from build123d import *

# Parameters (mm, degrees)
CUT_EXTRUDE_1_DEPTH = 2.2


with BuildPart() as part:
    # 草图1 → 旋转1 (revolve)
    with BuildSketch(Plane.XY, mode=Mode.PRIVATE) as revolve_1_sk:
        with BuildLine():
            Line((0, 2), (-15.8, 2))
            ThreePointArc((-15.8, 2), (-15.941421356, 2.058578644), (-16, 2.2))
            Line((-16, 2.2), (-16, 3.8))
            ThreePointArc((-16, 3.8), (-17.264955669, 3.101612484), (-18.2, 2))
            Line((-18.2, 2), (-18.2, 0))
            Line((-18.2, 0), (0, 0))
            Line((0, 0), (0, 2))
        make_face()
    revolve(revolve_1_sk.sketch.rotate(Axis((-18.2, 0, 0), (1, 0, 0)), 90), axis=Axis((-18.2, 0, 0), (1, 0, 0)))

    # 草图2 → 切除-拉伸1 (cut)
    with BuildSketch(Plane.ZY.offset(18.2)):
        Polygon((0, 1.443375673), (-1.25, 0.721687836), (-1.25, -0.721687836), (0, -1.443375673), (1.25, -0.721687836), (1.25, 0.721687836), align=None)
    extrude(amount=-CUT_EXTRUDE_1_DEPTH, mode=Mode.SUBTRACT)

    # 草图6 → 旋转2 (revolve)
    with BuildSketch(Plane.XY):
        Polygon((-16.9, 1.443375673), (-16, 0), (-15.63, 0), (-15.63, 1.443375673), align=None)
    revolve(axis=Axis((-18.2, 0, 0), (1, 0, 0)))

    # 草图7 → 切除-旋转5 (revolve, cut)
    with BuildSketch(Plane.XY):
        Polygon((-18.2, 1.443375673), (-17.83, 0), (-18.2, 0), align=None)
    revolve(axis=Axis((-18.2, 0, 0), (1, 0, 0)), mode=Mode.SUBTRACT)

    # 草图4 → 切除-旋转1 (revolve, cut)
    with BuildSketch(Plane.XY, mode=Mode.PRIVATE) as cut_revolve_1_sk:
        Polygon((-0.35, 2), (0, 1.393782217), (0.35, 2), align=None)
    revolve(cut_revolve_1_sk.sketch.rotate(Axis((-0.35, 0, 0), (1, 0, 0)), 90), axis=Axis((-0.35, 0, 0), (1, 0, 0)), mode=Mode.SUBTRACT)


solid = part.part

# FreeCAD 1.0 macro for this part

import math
import FreeCAD as App
import Part
import Sketcher
from FreeCAD import Vector
Q = App.Units.Quantity

doc = App.newDocument("Part")
params = doc.addObject("Spreadsheet::Sheet", "Params")
for row, (alias, value) in enumerate([
    ("sketch1_radius", "0.2 mm"),
    ("sketch1_height", "2 mm"),
    ("sketch1_width", "15.8 mm"),
    ("sketch1_width2", "18.2 mm"),
    ("sketch1_height2", "1.6 mm"),
    ("revolution_angle", "360 deg"),
    ("pocket1_length", "2.2 mm"),
    ("sketch3_width", "0.37 mm"),
    ("sketch3_width2", "1.27 mm"),
    ("revolution2_angle", "360 deg"),
    ("sketch4_width", "0.37 mm"),
    ("groove_angle", "360 deg"),
    ("sketch5_width", "0.7 mm"),
    ("groove2_angle", "360 deg"),
], start=1):
    params.set(f"A{row}", alias)
    params.set(f"B{row}", "=" + value)
    params.setAlias(f"B{row}", alias)

body = doc.addObject("PartDesign::Body", "Body")

sketch1 = body.newObject("Sketcher::SketchObject", "Sketch")
sketch1.AttachmentSupport = (doc.getObject("XY_Plane"), [""])
sketch1.MapMode = "FlatFace"
sketch1.addGeometry([
    Part.LineSegment(Vector(0, 2, 0), Vector(-15.8, 2, 0)),
    Part.ArcOfCircle(Part.Circle(Vector(-15.8, 2.2, 0), Vector(0, 0, 1), 0.2), math.radians(-180), math.radians(-90)),
    Part.LineSegment(Vector(-16, 2.2, 0), Vector(-16, 3.8, 0)),
    Part.ArcOfCircle(Part.Circle(Vector(-14.727273, 0, 0), Vector(0, 0, 1), 4.007472), math.radians(108.517152), math.radians(150.061662)),
    Part.LineSegment(Vector(-18.2, 2, 0), Vector(-18.2, 0, 0)),
    Part.LineSegment(Vector(-18.2, 0, 0), Vector(0, 0, 0)),
    Part.LineSegment(Vector(0, 0, 0), Vector(0, 2, 0)),
], False)
sketch1.addConstraint([
    Sketcher.Constraint("Tangent", 0, 2, 1, 2),
    Sketcher.Constraint("Tangent", 1, 1, 2, 1),
    Sketcher.Constraint("Coincident", 2, 2, 3, 1),
    Sketcher.Constraint("Coincident", 3, 2, 4, 1),
    Sketcher.Constraint("Coincident", 4, 2, 5, 1),
    Sketcher.Constraint("Coincident", 5, 2, 6, 1),
    Sketcher.Constraint("Coincident", 6, 2, 0, 1),
    Sketcher.Constraint("Horizontal", 0),
    Sketcher.Constraint("Vertical", 2),
    Sketcher.Constraint("Vertical", 4),
    Sketcher.Constraint("Horizontal", 5),
    Sketcher.Constraint("Vertical", 6),
    Sketcher.Constraint("Coincident", 5, 2, -1, 1),
    Sketcher.Constraint("PointOnObject", 3, 3, -1),
    Sketcher.Constraint("Horizontal", 0, 2, 3, 2),
    Sketcher.Constraint("Radius", 1, Q("0.2 mm")),
    Sketcher.Constraint("DistanceY", 4, 2, 4, 1, Q("2 mm")),
    Sketcher.Constraint("DistanceX", 0, 2, 0, 1, Q("15.8 mm")),
    Sketcher.Constraint("DistanceX", 5, 1, 5, 2, Q("18.2 mm")),
    Sketcher.Constraint("DistanceY", 2, 1, 2, 2, Q("1.6 mm")),
])
sketch1.setExpression("Constraints[15]", "Params.sketch1_radius")
sketch1.setExpression("Constraints[16]", "Params.sketch1_height")
sketch1.setExpression("Constraints[17]", "Params.sketch1_width")
sketch1.setExpression("Constraints[18]", "Params.sketch1_width2")
sketch1.setExpression("Constraints[19]", "Params.sketch1_height2")
revolution = body.newObject("PartDesign::Revolution", "Revolution")
revolution.Profile = sketch1
revolution.ReferenceAxis = (sketch1, ["H_Axis"])
revolution.setExpression("Angle", "Params.revolution_angle")

sketch2 = body.newObject("Sketcher::SketchObject", "Sketch001")
sketch2.AttachmentSupport = (doc.getObject("YZ_Plane"), [""])
sketch2.MapMode = "FlatFace"
sketch2.AttachmentOffset = App.Placement(Vector(0, 0, -18.2), App.Rotation())
sketch2.addGeometry([
    Part.LineSegment(Vector(1.443376, 0, 0), Vector(0.721688, -1.25, 0)),
    Part.LineSegment(Vector(0.721688, -1.25, 0), Vector(-0.721688, -1.25, 0)),
    Part.LineSegment(Vector(-0.721688, -1.25, 0), Vector(-1.443376, 0, 0)),
    Part.LineSegment(Vector(-1.443376, 0, 0), Vector(-0.721688, 1.25, 0)),
    Part.LineSegment(Vector(-0.721688, 1.25, 0), Vector(0.721688, 1.25, 0)),
    Part.LineSegment(Vector(0.721688, 1.25, 0), Vector(1.443376, 0, 0)),
], False)
sketch2.addConstraint([
    Sketcher.Constraint("Coincident", 0, 2, 1, 1),
    Sketcher.Constraint("Coincident", 1, 2, 2, 1),
    Sketcher.Constraint("Coincident", 2, 2, 3, 1),
    Sketcher.Constraint("Coincident", 3, 2, 4, 1),
    Sketcher.Constraint("Coincident", 4, 2, 5, 1),
    Sketcher.Constraint("Coincident", 5, 2, 0, 1),
    Sketcher.Constraint("Horizontal", 1),
    Sketcher.Constraint("Horizontal", 4),
    Sketcher.Constraint("Symmetric", 0, 2, 3, 2, -1, 1),
    Sketcher.Constraint("Symmetric", 2, 2, 5, 2, -1, 1),
    Sketcher.Constraint("PointOnObject", 2, 2, -1),
    Sketcher.Constraint("Parallel", 2, 5),
    Sketcher.Constraint("Vertical", 1, 2, 3, 2),
    Sketcher.Constraint("Angle", 0, Q("-120 deg")),
    Sketcher.Constraint("DistanceY", 1, 2, 3, 2, Q("2.5 mm")),
    Sketcher.Constraint("DistanceX", 1, 2, 1, 1, Q("1.443376 mm")),
])
pocket1 = body.newObject("PartDesign::Pocket", "Pocket")
pocket1.Profile = sketch2
pocket1.setExpression("Length", "Params.pocket1_length")
pocket1.Reversed = True

sketch3 = body.newObject("Sketcher::SketchObject", "Sketch002")
sketch3.AttachmentSupport = (doc.getObject("XY_Plane"), [""])
sketch3.MapMode = "FlatFace"
sketch3.addGeometry([
    Part.LineSegment(Vector(-16.9, 1.443376, 0), Vector(-16, 0, 0)),
    Part.LineSegment(Vector(-16, 0, 0), Vector(-15.63, 0, 0)),
    Part.LineSegment(Vector(-15.63, 0, 0), Vector(-15.63, 1.443376, 0)),
    Part.LineSegment(Vector(-15.63, 1.443376, 0), Vector(-16.9, 1.443376, 0)),
], False)
sketch3.addConstraint([
    Sketcher.Constraint("Coincident", 0, 2, 1, 1),
    Sketcher.Constraint("Coincident", 1, 2, 2, 1),
    Sketcher.Constraint("Coincident", 2, 2, 3, 1),
    Sketcher.Constraint("Coincident", 3, 2, 0, 1),
    Sketcher.Constraint("Horizontal", 1),
    Sketcher.Constraint("Vertical", 2),
    Sketcher.Constraint("Horizontal", 3),
    Sketcher.Constraint("PointOnObject", 0, 2, -1),
    Sketcher.Constraint("DistanceX", 0, 2, -1, 1, Q("16 mm")),
    Sketcher.Constraint("DistanceX", 1, 1, 1, 2, Q("0.37 mm")),
    Sketcher.Constraint("DistanceX", 3, 2, 3, 1, Q("1.27 mm")),
    Sketcher.Constraint("Distance", 0, Q("1.70098 mm")),
])
sketch3.setExpression("Constraints[9]", "Params.sketch3_width")
sketch3.setExpression("Constraints[10]", "Params.sketch3_width2")
revolution2 = body.newObject("PartDesign::Revolution", "Revolution001")
revolution2.Profile = sketch3
revolution2.ReferenceAxis = (sketch3, ["H_Axis"])
revolution2.setExpression("Angle", "Params.revolution2_angle")

sketch4 = body.newObject("Sketcher::SketchObject", "Sketch003")
sketch4.AttachmentSupport = (doc.getObject("XY_Plane"), [""])
sketch4.MapMode = "FlatFace"
sketch4.addGeometry([
    Part.LineSegment(Vector(-17.83, 0, 0), Vector(-18.2, 1.443376, 0)),
    Part.LineSegment(Vector(-18.2, 1.443376, 0), Vector(-18.2, 0, 0)),
    Part.LineSegment(Vector(-18.2, 0, 0), Vector(-17.83, 0, 0)),
], False)
sketch4.addConstraint([
    Sketcher.Constraint("Coincident", 0, 2, 1, 1),
    Sketcher.Constraint("Coincident", 1, 2, 2, 1),
    Sketcher.Constraint("Coincident", 2, 2, 0, 1),
    Sketcher.Constraint("Vertical", 1),
    Sketcher.Constraint("Horizontal", 2),
    Sketcher.Constraint("PointOnObject", 1, 2, -1),
    Sketcher.Constraint("DistanceX", 2, 1, 2, 2, Q("0.37 mm")),
    Sketcher.Constraint("DistanceX", 0, 2, -1, 1, Q("18.2 mm")),
    Sketcher.Constraint("DistanceY", 1, 2, 1, 1, Q("1.443376 mm")),
])
sketch4.setExpression("Constraints[6]", "Params.sketch4_width")
groove = body.newObject("PartDesign::Groove", "Groove")
groove.Profile = sketch4
groove.ReferenceAxis = (sketch4, ["H_Axis"])
groove.setExpression("Angle", "Params.groove_angle")

sketch5 = body.newObject("Sketcher::SketchObject", "Sketch004")
sketch5.AttachmentSupport = (doc.getObject("XY_Plane"), [""])
sketch5.MapMode = "FlatFace"
sketch5.addGeometry([
    Part.LineSegment(Vector(-0.35, 2, 0), Vector(0, 1.393782, 0)),
    Part.LineSegment(Vector(0, 1.393782, 0), Vector(0.35, 2, 0)),
    Part.LineSegment(Vector(0.35, 2, 0), Vector(-0.35, 2, 0)),
], False)
sketch5.addConstraint([
    Sketcher.Constraint("Coincident", 0, 2, 1, 1),
    Sketcher.Constraint("Coincident", 1, 2, 2, 1),
    Sketcher.Constraint("Coincident", 2, 2, 0, 1),
    Sketcher.Constraint("Horizontal", 2),
    Sketcher.Constraint("PointOnObject", 0, 2, -2),
    Sketcher.Constraint("Equal", 0, 1),
    Sketcher.Constraint("Angle", 0, Q("-60 deg")),
    Sketcher.Constraint("DistanceX", 2, 2, 2, 1, Q("0.7 mm")),
    Sketcher.Constraint("DistanceY", -1, 1, 1, 2, Q("2 mm")),
])
sketch5.setExpression("Constraints[7]", "Params.sketch5_width")
groove2 = body.newObject("PartDesign::Groove", "Groove001")
groove2.Profile = sketch5
groove2.ReferenceAxis = (sketch5, ["H_Axis"])
groove2.setExpression("Angle", "Params.groove2_angle")

doc.recompute()
